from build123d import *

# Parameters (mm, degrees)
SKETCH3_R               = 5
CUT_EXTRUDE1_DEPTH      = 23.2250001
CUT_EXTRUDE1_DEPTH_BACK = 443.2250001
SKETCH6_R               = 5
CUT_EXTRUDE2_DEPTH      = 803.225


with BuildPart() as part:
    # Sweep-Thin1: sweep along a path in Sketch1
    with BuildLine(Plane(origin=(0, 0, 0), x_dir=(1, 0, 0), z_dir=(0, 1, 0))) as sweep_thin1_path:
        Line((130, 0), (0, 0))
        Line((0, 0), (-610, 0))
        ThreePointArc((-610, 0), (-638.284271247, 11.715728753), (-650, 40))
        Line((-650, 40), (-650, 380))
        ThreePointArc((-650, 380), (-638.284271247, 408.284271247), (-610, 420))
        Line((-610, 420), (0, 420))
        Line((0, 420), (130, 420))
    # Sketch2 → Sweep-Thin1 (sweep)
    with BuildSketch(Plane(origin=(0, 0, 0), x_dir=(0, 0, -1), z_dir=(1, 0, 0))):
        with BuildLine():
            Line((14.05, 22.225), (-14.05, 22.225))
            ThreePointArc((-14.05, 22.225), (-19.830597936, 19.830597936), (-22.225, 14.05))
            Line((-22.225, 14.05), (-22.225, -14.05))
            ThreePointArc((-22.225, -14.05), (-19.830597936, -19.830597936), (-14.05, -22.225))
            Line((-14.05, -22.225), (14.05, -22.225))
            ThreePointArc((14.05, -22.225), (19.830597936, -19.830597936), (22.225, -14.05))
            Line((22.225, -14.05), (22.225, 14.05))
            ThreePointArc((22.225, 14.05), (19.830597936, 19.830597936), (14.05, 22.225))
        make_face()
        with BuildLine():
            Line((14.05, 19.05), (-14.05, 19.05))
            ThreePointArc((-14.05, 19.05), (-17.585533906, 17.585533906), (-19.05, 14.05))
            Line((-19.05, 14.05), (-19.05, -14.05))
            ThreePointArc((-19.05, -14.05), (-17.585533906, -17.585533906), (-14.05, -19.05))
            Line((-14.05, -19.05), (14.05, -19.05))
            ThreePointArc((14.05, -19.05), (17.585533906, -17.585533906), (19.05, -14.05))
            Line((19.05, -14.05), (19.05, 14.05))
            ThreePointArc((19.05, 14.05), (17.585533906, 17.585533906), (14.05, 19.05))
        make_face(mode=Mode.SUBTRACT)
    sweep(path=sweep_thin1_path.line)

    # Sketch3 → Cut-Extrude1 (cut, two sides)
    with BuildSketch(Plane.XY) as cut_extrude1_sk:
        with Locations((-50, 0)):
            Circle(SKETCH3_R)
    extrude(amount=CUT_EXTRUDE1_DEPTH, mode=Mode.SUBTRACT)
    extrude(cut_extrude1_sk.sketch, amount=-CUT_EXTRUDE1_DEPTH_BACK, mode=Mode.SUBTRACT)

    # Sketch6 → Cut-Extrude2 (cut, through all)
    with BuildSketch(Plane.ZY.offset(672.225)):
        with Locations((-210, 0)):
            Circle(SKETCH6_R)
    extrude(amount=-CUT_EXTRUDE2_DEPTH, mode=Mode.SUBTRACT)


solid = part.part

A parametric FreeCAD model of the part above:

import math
import FreeCAD as App
import Part
import Sketcher

V = App.Vector

doc = App.newDocument("Part")
body = doc.addObject("PartDesign::Body", "Body")

sketch1 = body.newObject("Sketcher::SketchObject", "Sketch")
sketch1.AttachmentSupport = (doc.getObject("YZ_Plane"), [""])
sketch1.MapMode = "FlatFace"
sketch1.addGeometry(Part.LineSegment(V(22, -14, 0), V(22, 14, 0)), False)
sketch1.addGeometry(Part.ArcOfCircle(Part.Circle(V(14, 14, 0), V(0, 0, 1), 8), math.radians(0), math.radians(90)), False)
sketch1.addGeometry(Part.LineSegment(V(14, 22, 0), V(-14, 22, 0)), False)
sketch1.addGeometry(Part.ArcOfCircle(Part.Circle(V(-14, 14, 0), V(0, 0, 1), 8), math.radians(90), math.radians(180)), False)
sketch1.addGeometry(Part.LineSegment(V(-22, 14, 0), V(-22, -14, 0)), False)
sketch1.addGeometry(Part.ArcOfCircle(Part.Circle(V(-14, -14, 0), V(0, 0, 1), 8), math.radians(-180), math.radians(-90)), False)
sketch1.addGeometry(Part.LineSegment(V(-14, -22, 0), V(14, -22, 0)), False)
sketch1.addGeometry(Part.ArcOfCircle(Part.Circle(V(14, -14, 0), V(0, 0, 1), 8), math.radians(-90), math.radians(0)), False)
sketch1.addGeometry(Part.LineSegment(V(19, 14, 0), V(19, -14, 0)), False)
sketch1.addGeometry(Part.ArcOfCircle(Part.Circle(V(14, -14, 0), V(0, 0, 1), 5), math.radians(-90), math.radians(0)), False)
sketch1.addGeometry(Part.LineSegment(V(14, -19, 0), V(-14, -19, 0)), False)
sketch1.addGeometry(Part.ArcOfCircle(Part.Circle(V(-14, -14, 0), V(0, 0, 1), 5), math.radians(180), math.radians(270)), False)
sketch1.addGeometry(Part.LineSegment(V(-19, -14, 0), V(-19, 14, 0)), False)
sketch1.addGeometry(Part.ArcOfCircle(Part.Circle(V(-14, 14, 0), V(0, 0, 1), 5), math.radians(90), math.radians(180)), False)
sketch1.addGeometry(Part.LineSegment(V(-14, 19, 0), V(14, 19, 0)), False)
sketch1.addGeometry(Part.ArcOfCircle(Part.Circle(V(14, 14, 0), V(0, 0, 1), 5), math.radians(0), math.radians(90)), False)
sketch1.addConstraint(Sketcher.Constraint("Tangent", 0, 2, 1, 1))
sketch1.addConstraint(Sketcher.Constraint("Tangent", 1, 2, 2, 1))
sketch1.addConstraint(Sketcher.Constraint("Tangent", 2, 2, 3, 1))
sketch1.addConstraint(Sketcher.Constraint("Tangent", 3, 2, 4, 1))
sketch1.addConstraint(Sketcher.Constraint("Tangent", 4, 2, 5, 1))
sketch1.addConstraint(Sketcher.Constraint("Tangent", 5, 2, 6, 1))
sketch1.addConstraint(Sketcher.Constraint("Tangent", 6, 2, 7, 1))
sketch1.addConstraint(Sketcher.Constraint("Tangent", 7, 2, 0, 1))
sketch1.addConstraint(Sketcher.Constraint("Tangent", 8, 2, 9, 2))
sketch1.addConstraint(Sketcher.Constraint("Tangent", 9, 1, 10, 1))
sketch1.addConstraint(Sketcher.Constraint("Tangent", 10, 2, 11, 2))
sketch1.addConstraint(Sketcher.Constraint("Tangent", 11, 1, 12, 1))
sketch1.addConstraint(Sketcher.Constraint("Tangent", 12, 2, 13, 2))
sketch1.addConstraint(Sketcher.Constraint("Tangent", 13, 1, 14, 1))
sketch1.addConstraint(Sketcher.Constraint("Tangent", 14, 2, 15, 2))
sketch1.addConstraint(Sketcher.Constraint("Tangent", 15, 1, 8, 1))
sketch1.addConstraint(Sketcher.Constraint("Vertical", 0))
sketch1.addConstraint(Sketcher.Constraint("Horizontal", 2))
sketch1.addConstraint(Sketcher.Constraint("Vertical", 4))
sketch1.addConstraint(Sketcher.Constraint("Horizontal", 6))
sketch1.addConstraint(Sketcher.Constraint("Vertical", 8))
sketch1.addConstraint(Sketcher.Constraint("Horizontal", 10))
sketch1.addConstraint(Sketcher.Constraint("Vertical", 12))
sketch1.addConstraint(Sketcher.Constraint("Horizontal", 14))
sketch1.addConstraint(Sketcher.Constraint("Coincident", 9, 3, 7, 3))
sketch1.addConstraint(Sketcher.Constraint("Coincident", 11, 3, 5, 3))
sketch1.addConstraint(Sketcher.Constraint("Coincident", 13, 3, 3, 3))
sketch1.addConstraint(Sketcher.Constraint("Equal", 1, 3))
sketch1.addConstraint(Sketcher.Constraint("Equal", 3, 5))
sketch1.addConstraint(Sketcher.Constraint("Equal", 5, 7))
sketch1.addConstraint(Sketcher.Constraint("Equal", 13, 15))
sketch1.addConstraint(Sketcher.Constraint("Symmetric", 1, 3, 5, 3, -1, 1))
sketch1.addConstraint(Sketcher.Constraint("Equal", 14, 0))
sketch1.addConstraint(Sketcher.Constraint("Radius", 9, 5.0))
sketch1.addConstraint(Sketcher.Constraint("DistanceX", 2, 2, 2, 1, 28.1))
sketch1.addConstraint(Sketcher.Constraint("Radius", 1, 8.175))

sketch2 = body.newObject("Sketcher::SketchObject", "Sketch001")
sketch2.AttachmentSupport = (doc.getObject("XZ_Plane"), [""])
sketch2.MapMode = "FlatFace"
sketch2.addGeometry(Part.LineSegment(V(130, 0, 0), V(-610, 0, 0)), False)
sketch2.addGeometry(Part.ArcOfCircle(Part.Circle(V(-610, -40, 0), V(0, 0, 1), 40), math.radians(90), math.radians(180)), False)
sketch2.addGeometry(Part.LineSegment(V(-650, -40, 0), V(-650, -380, 0)), False)
sketch2.addGeometry(Part.ArcOfCircle(Part.Circle(V(-610, -380, 0), V(0, 0, 1), 40), math.radians(-180), math.radians(-90)), False)
sketch2.addGeometry(Part.LineSegment(V(-610, -420, 0), V(130, -420, 0)), False)
sketch2.addConstraint(Sketcher.Constraint("Tangent", 0, 2, 1, 1))
sketch2.addConstraint(Sketcher.Constraint("Tangent", 1, 2, 2, 1))
sketch2.addConstraint(Sketcher.Constraint("Tangent", 2, 2, 3, 1))
sketch2.addConstraint(Sketcher.Constraint("Tangent", 3, 2, 4, 1))
sketch2.addConstraint(Sketcher.Constraint("Horizontal", 0))
sketch2.addConstraint(Sketcher.Constraint("Vertical", 2))
sketch2.addConstraint(Sketcher.Constraint("Horizontal", 4))
sketch2.addConstraint(Sketcher.Constraint("Equal", 1, 3))
sketch2.addConstraint(Sketcher.Constraint("PointOnObject", 0, 1, -1))
sketch2.addConstraint(Sketcher.Constraint("Vertical", 0, 1, 4, 2))
sketch2.addConstraint(Sketcher.Constraint("Radius", 1, 40.0))
sketch2.addConstraint(Sketcher.Constraint("DistanceX", 0, 2, 0, 1, 740.0))
sketch2.addConstraint(Sketcher.Constraint("DistanceY", 2, 2, 2, 1, 340.0))
sketch2.addConstraint(Sketcher.Constraint("DistanceX", 1, 3, -1, 1, 610.0))
doc.recompute()

additivepipe = body.newObject("PartDesign::AdditivePipe", "AdditivePipe")
additivepipe.Profile = sketch1
additivepipe.Spine = (sketch2, ["Edge1", "Edge2", "Edge3", "Edge4", "Edge5"])

sketch3 = body.newObject("Sketcher::SketchObject", "Sketch002")
sketch3.AttachmentSupport = (doc.getObject("XY_Plane"), [""])
sketch3.MapMode = "FlatFace"
sketch3.addGeometry(Part.Circle(V(-50, 0, 0), V(0, 0, 1), 5), False)
sketch3.addConstraint(Sketcher.Constraint("PointOnObject", 0, 3, -1))
sketch3.addConstraint(Sketcher.Constraint("Diameter", 0, 10.0))
sketch3.addConstraint(Sketcher.Constraint("DistanceX", 0, 3, -1, 1, 50.0))
pocket1 = body.newObject("PartDesign::Pocket", "Pocket")
pocket1.Profile = sketch3
pocket1.Type = "ThroughAll"
pocket1.Midplane = True

sketch4 = body.newObject("Sketcher::SketchObject", "Sketch003")
sketch4.AttachmentSupport = (doc.getObject("YZ_Plane"), [""])
sketch4.MapMode = "FlatFace"
sketch4.AttachmentOffset = App.Placement(V(0, 0, -672.225), App.Rotation())
sketch4.addGeometry(Part.Circle(V(0, -210, 0), V(0, 0, 1), 5), False)
sketch4.addConstraint(Sketcher.Constraint("PointOnObject", 0, 3, -2))
sketch4.addConstraint(Sketcher.Constraint("Diameter", 0, 10.0))
sketch4.addConstraint(Sketcher.Constraint("DistanceY", 0, 3, -1, 1, 210.0))
pocket2 = body.newObject("PartDesign::Pocket", "Pocket001")
pocket2.Profile = sketch4
pocket2.Type = "ThroughAll"
pocket2.Reversed = True

doc.recompute()
